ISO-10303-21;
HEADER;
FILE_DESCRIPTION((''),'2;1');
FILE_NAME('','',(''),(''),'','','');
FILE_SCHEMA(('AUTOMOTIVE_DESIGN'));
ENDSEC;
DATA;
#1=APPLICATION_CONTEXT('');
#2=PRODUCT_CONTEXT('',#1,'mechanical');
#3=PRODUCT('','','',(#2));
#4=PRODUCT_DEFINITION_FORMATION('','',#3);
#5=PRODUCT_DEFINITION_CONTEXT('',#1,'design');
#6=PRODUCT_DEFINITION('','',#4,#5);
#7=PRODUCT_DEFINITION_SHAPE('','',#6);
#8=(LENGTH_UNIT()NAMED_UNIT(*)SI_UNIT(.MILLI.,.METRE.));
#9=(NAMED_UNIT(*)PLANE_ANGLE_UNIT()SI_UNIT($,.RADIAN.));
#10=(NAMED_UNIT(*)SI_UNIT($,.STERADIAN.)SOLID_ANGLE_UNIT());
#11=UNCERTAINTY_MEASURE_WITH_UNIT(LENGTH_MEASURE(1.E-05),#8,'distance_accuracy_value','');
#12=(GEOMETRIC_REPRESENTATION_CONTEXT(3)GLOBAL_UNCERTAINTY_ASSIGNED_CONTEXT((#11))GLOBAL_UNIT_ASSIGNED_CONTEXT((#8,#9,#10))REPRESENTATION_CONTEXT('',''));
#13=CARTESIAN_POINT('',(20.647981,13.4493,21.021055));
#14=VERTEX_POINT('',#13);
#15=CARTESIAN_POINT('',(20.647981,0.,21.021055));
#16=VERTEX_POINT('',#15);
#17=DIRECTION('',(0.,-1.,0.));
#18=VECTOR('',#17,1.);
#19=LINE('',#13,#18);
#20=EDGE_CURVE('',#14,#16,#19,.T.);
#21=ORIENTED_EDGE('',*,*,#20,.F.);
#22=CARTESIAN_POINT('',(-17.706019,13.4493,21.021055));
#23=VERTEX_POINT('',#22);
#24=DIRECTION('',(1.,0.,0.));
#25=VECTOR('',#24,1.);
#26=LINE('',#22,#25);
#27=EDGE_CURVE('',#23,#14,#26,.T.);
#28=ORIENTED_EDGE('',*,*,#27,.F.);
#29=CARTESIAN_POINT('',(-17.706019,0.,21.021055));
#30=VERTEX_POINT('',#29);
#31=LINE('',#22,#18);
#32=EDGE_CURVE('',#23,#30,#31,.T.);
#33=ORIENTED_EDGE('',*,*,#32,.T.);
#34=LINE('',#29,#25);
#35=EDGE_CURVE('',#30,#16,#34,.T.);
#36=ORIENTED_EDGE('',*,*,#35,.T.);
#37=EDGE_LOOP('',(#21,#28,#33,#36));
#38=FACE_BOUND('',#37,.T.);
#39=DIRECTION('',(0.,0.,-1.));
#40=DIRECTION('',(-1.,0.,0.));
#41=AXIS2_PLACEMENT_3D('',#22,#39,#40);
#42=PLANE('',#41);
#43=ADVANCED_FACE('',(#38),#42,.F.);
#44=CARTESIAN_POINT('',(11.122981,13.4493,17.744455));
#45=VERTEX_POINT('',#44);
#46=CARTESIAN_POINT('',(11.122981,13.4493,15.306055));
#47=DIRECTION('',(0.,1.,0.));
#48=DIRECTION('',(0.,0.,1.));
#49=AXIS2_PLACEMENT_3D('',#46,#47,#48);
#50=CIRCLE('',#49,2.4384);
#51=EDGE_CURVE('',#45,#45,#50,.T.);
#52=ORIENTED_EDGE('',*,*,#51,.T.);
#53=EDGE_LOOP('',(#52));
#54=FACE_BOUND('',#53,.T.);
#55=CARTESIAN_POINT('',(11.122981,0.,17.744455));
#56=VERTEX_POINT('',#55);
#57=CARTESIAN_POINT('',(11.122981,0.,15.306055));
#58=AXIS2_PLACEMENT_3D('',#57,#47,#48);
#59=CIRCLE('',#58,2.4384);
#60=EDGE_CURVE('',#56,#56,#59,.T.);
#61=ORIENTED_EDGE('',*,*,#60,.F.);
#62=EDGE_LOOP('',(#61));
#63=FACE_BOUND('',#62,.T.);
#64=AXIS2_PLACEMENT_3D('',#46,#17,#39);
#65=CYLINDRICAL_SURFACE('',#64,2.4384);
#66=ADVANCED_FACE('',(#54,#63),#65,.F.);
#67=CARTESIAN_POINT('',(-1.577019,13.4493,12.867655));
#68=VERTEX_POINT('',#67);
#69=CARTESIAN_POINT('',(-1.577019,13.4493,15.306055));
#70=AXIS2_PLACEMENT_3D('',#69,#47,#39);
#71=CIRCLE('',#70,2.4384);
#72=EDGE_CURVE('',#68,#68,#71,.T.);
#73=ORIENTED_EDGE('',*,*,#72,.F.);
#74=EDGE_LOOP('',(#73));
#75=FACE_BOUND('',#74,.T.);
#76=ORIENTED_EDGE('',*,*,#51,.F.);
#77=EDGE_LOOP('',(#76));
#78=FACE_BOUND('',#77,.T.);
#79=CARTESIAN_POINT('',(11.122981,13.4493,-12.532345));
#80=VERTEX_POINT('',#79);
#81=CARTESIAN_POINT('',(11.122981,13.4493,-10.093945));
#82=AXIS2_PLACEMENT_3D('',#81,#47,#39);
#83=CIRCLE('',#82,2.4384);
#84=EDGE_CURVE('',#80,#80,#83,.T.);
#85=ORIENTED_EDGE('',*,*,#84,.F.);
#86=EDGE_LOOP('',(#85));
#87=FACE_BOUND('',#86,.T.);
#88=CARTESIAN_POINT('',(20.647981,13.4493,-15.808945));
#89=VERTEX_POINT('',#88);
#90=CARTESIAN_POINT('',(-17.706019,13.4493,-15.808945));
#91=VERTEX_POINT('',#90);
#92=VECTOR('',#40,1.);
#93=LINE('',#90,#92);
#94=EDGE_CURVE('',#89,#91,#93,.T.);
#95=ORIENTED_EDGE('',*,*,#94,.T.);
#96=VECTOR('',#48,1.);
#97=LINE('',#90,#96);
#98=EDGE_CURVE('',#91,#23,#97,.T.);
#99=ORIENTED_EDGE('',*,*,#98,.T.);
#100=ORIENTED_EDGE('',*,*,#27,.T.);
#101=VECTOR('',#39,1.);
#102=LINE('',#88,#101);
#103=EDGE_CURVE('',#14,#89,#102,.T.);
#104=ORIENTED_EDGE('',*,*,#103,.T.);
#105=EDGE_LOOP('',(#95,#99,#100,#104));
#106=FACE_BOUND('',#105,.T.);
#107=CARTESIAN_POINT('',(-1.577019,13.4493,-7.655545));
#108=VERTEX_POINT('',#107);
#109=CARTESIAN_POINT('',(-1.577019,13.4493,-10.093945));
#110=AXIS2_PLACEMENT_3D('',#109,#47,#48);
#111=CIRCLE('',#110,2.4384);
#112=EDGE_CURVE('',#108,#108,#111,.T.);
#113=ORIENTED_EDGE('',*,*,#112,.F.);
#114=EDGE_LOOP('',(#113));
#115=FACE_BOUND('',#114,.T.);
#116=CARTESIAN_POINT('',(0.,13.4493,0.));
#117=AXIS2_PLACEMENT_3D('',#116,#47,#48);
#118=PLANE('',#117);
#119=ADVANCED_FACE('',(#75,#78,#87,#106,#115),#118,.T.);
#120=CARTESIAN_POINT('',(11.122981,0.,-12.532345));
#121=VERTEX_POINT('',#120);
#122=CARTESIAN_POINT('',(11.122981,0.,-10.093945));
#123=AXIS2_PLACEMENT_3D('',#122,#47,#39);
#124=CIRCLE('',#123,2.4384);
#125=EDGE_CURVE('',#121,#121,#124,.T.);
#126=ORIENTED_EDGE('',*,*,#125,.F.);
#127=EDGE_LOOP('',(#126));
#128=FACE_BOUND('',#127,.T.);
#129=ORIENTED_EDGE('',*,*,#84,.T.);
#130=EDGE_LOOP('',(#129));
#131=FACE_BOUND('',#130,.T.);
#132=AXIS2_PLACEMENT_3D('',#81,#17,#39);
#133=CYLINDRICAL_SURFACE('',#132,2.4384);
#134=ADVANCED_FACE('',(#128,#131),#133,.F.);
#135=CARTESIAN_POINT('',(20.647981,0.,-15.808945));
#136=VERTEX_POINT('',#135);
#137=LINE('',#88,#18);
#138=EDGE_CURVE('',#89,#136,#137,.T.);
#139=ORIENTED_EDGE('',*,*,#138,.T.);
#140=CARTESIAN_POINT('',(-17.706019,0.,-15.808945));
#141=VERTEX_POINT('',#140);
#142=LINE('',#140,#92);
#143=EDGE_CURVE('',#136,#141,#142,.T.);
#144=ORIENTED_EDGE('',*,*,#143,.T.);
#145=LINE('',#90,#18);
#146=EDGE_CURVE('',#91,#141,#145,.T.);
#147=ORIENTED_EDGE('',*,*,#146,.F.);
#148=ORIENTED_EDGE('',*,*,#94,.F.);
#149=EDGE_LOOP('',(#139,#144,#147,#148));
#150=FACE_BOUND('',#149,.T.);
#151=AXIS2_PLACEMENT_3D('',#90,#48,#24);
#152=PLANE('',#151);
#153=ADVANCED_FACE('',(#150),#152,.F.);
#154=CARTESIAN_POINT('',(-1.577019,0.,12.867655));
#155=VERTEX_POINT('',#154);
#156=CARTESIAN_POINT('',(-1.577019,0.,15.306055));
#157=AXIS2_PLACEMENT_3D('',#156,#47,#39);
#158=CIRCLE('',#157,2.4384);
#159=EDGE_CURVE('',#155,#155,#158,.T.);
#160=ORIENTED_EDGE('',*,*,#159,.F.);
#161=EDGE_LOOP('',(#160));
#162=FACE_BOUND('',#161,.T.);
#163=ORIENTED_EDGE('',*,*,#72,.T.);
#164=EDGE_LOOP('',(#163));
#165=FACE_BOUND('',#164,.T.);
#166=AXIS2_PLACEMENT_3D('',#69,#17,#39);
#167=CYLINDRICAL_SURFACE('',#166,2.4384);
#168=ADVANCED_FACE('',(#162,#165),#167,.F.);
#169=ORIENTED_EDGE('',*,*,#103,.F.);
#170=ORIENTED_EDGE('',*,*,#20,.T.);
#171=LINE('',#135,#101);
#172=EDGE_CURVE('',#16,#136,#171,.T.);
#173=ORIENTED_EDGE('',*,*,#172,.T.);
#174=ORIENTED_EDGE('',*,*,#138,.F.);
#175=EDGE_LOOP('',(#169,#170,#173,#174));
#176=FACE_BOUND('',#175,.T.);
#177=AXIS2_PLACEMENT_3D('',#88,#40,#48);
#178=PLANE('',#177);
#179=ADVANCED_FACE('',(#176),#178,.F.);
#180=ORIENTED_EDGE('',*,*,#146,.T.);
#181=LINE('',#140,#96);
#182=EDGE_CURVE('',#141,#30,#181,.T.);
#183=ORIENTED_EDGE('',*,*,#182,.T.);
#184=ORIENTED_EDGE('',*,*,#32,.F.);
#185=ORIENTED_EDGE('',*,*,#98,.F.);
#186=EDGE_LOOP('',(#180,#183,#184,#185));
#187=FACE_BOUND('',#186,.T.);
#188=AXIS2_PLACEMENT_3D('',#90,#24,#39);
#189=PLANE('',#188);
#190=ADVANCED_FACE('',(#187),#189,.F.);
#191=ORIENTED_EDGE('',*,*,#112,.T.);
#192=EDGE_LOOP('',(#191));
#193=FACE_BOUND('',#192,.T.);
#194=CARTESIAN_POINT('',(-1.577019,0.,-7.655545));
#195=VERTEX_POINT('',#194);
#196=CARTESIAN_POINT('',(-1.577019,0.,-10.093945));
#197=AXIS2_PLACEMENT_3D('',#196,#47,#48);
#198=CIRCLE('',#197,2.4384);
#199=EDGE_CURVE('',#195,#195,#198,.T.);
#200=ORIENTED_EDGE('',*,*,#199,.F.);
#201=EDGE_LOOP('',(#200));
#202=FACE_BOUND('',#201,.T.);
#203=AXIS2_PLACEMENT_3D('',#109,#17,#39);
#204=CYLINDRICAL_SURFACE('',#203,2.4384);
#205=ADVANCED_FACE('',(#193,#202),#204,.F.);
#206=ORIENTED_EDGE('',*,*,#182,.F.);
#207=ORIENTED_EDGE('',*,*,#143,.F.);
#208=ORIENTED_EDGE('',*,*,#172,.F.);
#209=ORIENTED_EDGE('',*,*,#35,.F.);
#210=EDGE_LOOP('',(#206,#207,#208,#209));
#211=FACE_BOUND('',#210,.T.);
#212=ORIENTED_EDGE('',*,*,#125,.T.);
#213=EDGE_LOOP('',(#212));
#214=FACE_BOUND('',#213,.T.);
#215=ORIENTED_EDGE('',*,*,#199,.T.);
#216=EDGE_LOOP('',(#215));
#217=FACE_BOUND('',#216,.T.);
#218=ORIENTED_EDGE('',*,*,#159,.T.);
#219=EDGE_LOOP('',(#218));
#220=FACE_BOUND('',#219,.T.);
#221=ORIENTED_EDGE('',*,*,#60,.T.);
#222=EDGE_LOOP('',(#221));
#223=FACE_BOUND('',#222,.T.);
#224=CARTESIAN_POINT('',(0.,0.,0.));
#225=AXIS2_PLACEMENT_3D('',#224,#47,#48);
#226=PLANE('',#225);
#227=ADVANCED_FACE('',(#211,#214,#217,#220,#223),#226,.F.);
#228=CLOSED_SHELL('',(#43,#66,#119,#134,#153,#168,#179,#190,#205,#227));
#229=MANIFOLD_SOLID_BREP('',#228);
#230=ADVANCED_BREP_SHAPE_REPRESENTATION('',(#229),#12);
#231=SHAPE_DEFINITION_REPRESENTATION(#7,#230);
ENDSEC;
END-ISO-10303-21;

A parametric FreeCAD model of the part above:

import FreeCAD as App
import Part
import Sketcher

V = App.Vector
Q = App.Units.Quantity

doc = App.newDocument("Part")
params = doc.addObject("Spreadsheet::Sheet", "Params")
for row, (alias, value) in enumerate([
    ("sketch1_diameter", "0.192 in"),
    ("sketch1_width", "1.51 in"),
    ("sketch1_height", "1.45 in"),
    ("pad1_length", "0.5295 in"),
], start=1):
    params.set(f"A{row}", alias)
    params.set(f"B{row}", "=" + value)
    params.setAlias(f"B{row}", alias)

body = doc.addObject("PartDesign::Body", "Body")

# Sketch on XZ plane
sketch1 = body.newObject("Sketcher::SketchObject", "Sketch")
sketch1.AttachmentSupport = (doc.getObject("XZ_Plane"), [""])
sketch1.MapMode = "FlatFace"
sketch1.addGeometry([
    Part.LineSegment(V(-17.7, -15.8, 0), V(-17.7, 21, 0)),  # 0
    Part.LineSegment(V(-17.7, 21, 0), V(20.6, 21, 0)),  # 1
    Part.LineSegment(V(20.6, 21, 0), V(20.6, -15.8, 0)),  # 2
    Part.LineSegment(V(20.6, -15.8, 0), V(-17.7, -15.8, 0)),  # 3
    Part.Circle(V(-1.6, 15.3, 0), V(0, 0, 1), 2.4),  # 4
    Part.Circle(V(11.1, 15.3, 0), V(0, 0, 1), 2.4),  # 5
    Part.Circle(V(-1.6, -10.1, 0), V(0, 0, 1), 2.4),  # 6
    Part.Circle(V(11.1, -10.1, 0), V(0, 0, 1), 2.4),  # 7
], False)
sketch1.addConstraint([
    Sketcher.Constraint("Coincident", 0, 2, 1, 1),
    Sketcher.Constraint("Coincident", 1, 2, 2, 1),
    Sketcher.Constraint("Coincident", 2, 2, 3, 1),
    Sketcher.Constraint("Coincident", 3, 2, 0, 1),
    Sketcher.Constraint("Vertical", 0),
    Sketcher.Constraint("Horizontal", 1),
    Sketcher.Constraint("Vertical", 2),
    Sketcher.Constraint("Horizontal", 3),
    Sketcher.Constraint("Equal", 4, 5),
    Sketcher.Constraint("Equal", 5, 6),
    Sketcher.Constraint("Equal", 6, 7),
    Sketcher.Constraint("Horizontal", 4, 3, 5, 3),
    Sketcher.Constraint("Horizontal", 6, 3, 7, 3),
    Sketcher.Constraint("Vertical", 4, 3, 6, 3),
    Sketcher.Constraint("Vertical", 5, 3, 7, 3),
    Sketcher.Constraint("Diameter", 4, Q("0.192 in")),
    Sketcher.Constraint("DistanceY", 6, 3, 4, 3, Q("1 in")),
    Sketcher.Constraint("DistanceX", 1, 1, 1, 2, Q("1.51 in")),
    Sketcher.Constraint("DistanceY", 0, 1, 0, 2, Q("1.45 in")),
    Sketcher.Constraint("DistanceX", 4, 3, 5, 3, Q("0.5 in")),
    Sketcher.Constraint("DistanceX", 0, 2, 4, 3, Q("0.635 in")),
    Sketcher.Constraint("DistanceY", 4, 3, 0, 2, Q("0.225 in")),
    Sketcher.Constraint("DistanceX", 4, 3, -1, 1, Q("1.577019 mm")),
    Sketcher.Constraint("DistanceY", -1, 1, 4, 3, Q("15.306055 mm")),
])
sketch1.setExpression("Constraints[15]", "Params.sketch1_diameter")
sketch1.setExpression("Constraints[17]", "Params.sketch1_width")
sketch1.setExpression("Constraints[18]", "Params.sketch1_height")
pad1 = body.newObject("PartDesign::Pad", "Pad")
pad1.Profile = sketch1
pad1.setExpression("Length", "Params.pad1_length")
pad1.Reversed = True

doc.recompute()
